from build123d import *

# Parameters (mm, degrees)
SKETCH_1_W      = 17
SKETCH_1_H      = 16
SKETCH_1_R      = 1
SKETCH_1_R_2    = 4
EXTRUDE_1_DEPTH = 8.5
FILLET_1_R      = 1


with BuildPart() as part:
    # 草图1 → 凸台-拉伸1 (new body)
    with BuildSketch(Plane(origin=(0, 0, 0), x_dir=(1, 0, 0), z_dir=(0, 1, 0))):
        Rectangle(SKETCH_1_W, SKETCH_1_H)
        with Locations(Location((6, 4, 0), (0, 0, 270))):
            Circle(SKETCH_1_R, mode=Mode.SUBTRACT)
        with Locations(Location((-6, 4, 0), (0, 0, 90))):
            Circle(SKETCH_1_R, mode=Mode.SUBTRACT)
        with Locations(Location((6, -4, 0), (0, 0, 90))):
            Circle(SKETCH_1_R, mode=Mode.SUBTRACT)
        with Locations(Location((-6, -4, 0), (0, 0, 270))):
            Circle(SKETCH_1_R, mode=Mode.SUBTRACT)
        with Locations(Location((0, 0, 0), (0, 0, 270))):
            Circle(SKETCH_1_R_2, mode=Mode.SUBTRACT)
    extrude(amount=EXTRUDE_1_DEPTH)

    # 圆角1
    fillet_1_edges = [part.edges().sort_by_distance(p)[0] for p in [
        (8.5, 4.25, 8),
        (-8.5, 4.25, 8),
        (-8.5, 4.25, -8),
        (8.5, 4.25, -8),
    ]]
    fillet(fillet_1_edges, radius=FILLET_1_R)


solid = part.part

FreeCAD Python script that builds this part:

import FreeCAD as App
import Part
import Sketcher

V = App.Vector
Q = App.Units.Quantity


def edges_at(feature, points):
    """Names of the edges that pass closest to the given points."""
    edges = feature.Shape.Edges
    near = lambda p: min(range(len(edges)), key=lambda i: edges[i].distToShape(Part.Vertex(*p))[0])
    return sorted({f"Edge{near(p) + 1}" for p in points})

doc = App.newDocument("Part")
body = doc.addObject("PartDesign::Body", "Body")

sketch1 = body.newObject("Sketcher::SketchObject", "Sketch")
sketch1.AttachmentSupport = (doc.getObject("XZ_Plane"), [""])
sketch1.MapMode = "FlatFace"
sketch1.addGeometry([
    Part.LineSegment(V(-8.5, -8, 0), V(-8.5, 8, 0)),
    Part.LineSegment(V(-8.5, 8, 0), V(8.5, 8, 0)),
    Part.LineSegment(V(8.5, 8, 0), V(8.5, -8, 0)),
    Part.LineSegment(V(8.5, -8, 0), V(-8.5, -8, 0)),
    Part.Circle(V(-6, 4, 0), V(0, 0, 1), 1),
    Part.Circle(V(6, 4, 0), V(0, 0, 1), 1),
    Part.Circle(V(-6, -4, 0), V(0, 0, 1), 1),
    Part.Circle(V(0, 0, 0), V(0, 0, 1), 4),
    Part.Circle(V(6, -4, 0), V(0, 0, 1), 1),
], False)
sketch1.addConstraint([
    Sketcher.Constraint("Coincident", 0, 2, 1, 1),
    Sketcher.Constraint("Coincident", 1, 2, 2, 1),
    Sketcher.Constraint("Coincident", 2, 2, 3, 1),
    Sketcher.Constraint("Coincident", 3, 2, 0, 1),
    Sketcher.Constraint("Vertical", 0),
    Sketcher.Constraint("Horizontal", 1),
    Sketcher.Constraint("Vertical", 2),
    Sketcher.Constraint("Horizontal", 3),
    Sketcher.Constraint("Coincident", 7, 3, -1, 1),
    Sketcher.Constraint("Equal", 4, 5),
    Sketcher.Constraint("Equal", 5, 6),
    Sketcher.Constraint("Equal", 6, 8),
    Sketcher.Constraint("Symmetric", 5, 3, 6, 3, -1, 1),
    Sketcher.Constraint("Symmetric", 4, 3, 8, 3, -1, 1),
    Sketcher.Constraint("Symmetric", 0, 2, 2, 2, -1, 1),
    Sketcher.Constraint("Symmetric", 4, 3, 5, 3, -2),
    Sketcher.Constraint("Diameter", 4, Q("2 mm")),
    Sketcher.Constraint("Diameter", 7, Q("8 mm")),
    Sketcher.Constraint("DistanceX", 1, 1, 1, 2, Q("17 mm")),
    Sketcher.Constraint("DistanceY", 0, 1, 0, 2, Q("16 mm")),
    Sketcher.Constraint("DistanceX", 4, 3, -1, 1, Q("6 mm")),
    Sketcher.Constraint("DistanceY", -1, 1, 4, 3, Q("4 mm")),
])
pad1 = body.newObject("PartDesign::Pad", "Pad")
pad1.Profile = sketch1
pad1.Length = 8.5
pad1.Reversed = True
doc.recompute()

fillet = body.newObject("PartDesign::Fillet", "Fillet")
fillet.Base = (pad1, edges_at(pad1, [
    (8.5, 4.25, 8),
    (-8.5, 4.25, 8),
    (-8.5, 4.25, -8),
    (8.5, 4.25, -8),
]))
fillet.Radius = 1

doc.recompute()
